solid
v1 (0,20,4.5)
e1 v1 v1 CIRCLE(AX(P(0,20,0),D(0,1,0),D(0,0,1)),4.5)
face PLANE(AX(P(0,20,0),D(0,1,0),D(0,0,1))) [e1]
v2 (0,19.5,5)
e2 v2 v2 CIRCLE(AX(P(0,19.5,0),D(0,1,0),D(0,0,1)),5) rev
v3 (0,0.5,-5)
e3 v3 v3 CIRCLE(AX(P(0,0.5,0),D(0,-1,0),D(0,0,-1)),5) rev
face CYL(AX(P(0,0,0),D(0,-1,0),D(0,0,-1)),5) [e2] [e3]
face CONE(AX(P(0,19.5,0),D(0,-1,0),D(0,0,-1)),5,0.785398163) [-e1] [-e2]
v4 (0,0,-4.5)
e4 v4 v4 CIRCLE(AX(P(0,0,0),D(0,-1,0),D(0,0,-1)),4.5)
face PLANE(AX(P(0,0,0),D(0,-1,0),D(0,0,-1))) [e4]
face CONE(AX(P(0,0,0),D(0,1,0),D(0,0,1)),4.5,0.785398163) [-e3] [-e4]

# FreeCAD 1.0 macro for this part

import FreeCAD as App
import Part
import Sketcher
from FreeCAD import Vector
Q = App.Units.Quantity


def edges_at(feature, points):
    """Names of the edges that pass closest to the given points."""
    edges = feature.Shape.Edges
    near = lambda p: min(range(len(edges)), key=lambda i: edges[i].distToShape(Part.Vertex(*p))[0])
    return sorted({f"Edge{near(p) + 1}" for p in points})

doc = App.newDocument("Part")
body = doc.addObject("PartDesign::Body", "Body")

sketch1 = doc.addObject("Sketcher::SketchObject", "Sketch")
body.addObject(sketch1)
sketch1.AttachmentSupport = (doc.XY_Plane, [""])
sketch1.MapMode = "FlatFace"
sketch1.addGeometry(Part.LineSegment(Vector(0, 20, 0), Vector(0, 0, 0)), False)
sketch1.addGeometry(Part.LineSegment(Vector(0, 0, 0), Vector(5, 0, 0)), False)
sketch1.addGeometry(Part.LineSegment(Vector(5, 0, 0), Vector(5, 20, 0)), False)
sketch1.addGeometry(Part.LineSegment(Vector(5, 20, 0), Vector(0, 20, 0)), False)
sketch1.addConstraint(Sketcher.Constraint("Coincident", 0, 2, 1, 1))
sketch1.addConstraint(Sketcher.Constraint("Coincident", 1, 2, 2, 1))
sketch1.addConstraint(Sketcher.Constraint("Coincident", 2, 2, 3, 1))
sketch1.addConstraint(Sketcher.Constraint("Coincident", 3, 2, 0, 1))
sketch1.addConstraint(Sketcher.Constraint("Vertical", 0))
sketch1.addConstraint(Sketcher.Constraint("Horizontal", 1))
sketch1.addConstraint(Sketcher.Constraint("Vertical", 2))
sketch1.addConstraint(Sketcher.Constraint("Horizontal", 3))
sketch1.addConstraint(Sketcher.Constraint("Coincident", 0, 2, -1, 1))
sketch1.addConstraint(Sketcher.Constraint("DistanceX", 1, 1, 1, 2, Q("5 mm")))
sketch1.addConstraint(Sketcher.Constraint("DistanceY", 0, 2, 0, 1, Q("20 mm")))
revolution = doc.addObject("PartDesign::Revolution", "Revolution")
body.addObject(revolution)
revolution.Profile = sketch1
revolution.ReferenceAxis = (sketch1, ["V_Axis"])
revolution.Angle = 360
doc.recompute()

chamfer = doc.addObject("PartDesign::Chamfer", "Chamfer")
body.addObject(chamfer)
chamfer.Base = (revolution, edges_at(revolution, [(0, 0, 5), (0, 20, 5)]))
chamfer.Size = 0.5

doc.recompute()
